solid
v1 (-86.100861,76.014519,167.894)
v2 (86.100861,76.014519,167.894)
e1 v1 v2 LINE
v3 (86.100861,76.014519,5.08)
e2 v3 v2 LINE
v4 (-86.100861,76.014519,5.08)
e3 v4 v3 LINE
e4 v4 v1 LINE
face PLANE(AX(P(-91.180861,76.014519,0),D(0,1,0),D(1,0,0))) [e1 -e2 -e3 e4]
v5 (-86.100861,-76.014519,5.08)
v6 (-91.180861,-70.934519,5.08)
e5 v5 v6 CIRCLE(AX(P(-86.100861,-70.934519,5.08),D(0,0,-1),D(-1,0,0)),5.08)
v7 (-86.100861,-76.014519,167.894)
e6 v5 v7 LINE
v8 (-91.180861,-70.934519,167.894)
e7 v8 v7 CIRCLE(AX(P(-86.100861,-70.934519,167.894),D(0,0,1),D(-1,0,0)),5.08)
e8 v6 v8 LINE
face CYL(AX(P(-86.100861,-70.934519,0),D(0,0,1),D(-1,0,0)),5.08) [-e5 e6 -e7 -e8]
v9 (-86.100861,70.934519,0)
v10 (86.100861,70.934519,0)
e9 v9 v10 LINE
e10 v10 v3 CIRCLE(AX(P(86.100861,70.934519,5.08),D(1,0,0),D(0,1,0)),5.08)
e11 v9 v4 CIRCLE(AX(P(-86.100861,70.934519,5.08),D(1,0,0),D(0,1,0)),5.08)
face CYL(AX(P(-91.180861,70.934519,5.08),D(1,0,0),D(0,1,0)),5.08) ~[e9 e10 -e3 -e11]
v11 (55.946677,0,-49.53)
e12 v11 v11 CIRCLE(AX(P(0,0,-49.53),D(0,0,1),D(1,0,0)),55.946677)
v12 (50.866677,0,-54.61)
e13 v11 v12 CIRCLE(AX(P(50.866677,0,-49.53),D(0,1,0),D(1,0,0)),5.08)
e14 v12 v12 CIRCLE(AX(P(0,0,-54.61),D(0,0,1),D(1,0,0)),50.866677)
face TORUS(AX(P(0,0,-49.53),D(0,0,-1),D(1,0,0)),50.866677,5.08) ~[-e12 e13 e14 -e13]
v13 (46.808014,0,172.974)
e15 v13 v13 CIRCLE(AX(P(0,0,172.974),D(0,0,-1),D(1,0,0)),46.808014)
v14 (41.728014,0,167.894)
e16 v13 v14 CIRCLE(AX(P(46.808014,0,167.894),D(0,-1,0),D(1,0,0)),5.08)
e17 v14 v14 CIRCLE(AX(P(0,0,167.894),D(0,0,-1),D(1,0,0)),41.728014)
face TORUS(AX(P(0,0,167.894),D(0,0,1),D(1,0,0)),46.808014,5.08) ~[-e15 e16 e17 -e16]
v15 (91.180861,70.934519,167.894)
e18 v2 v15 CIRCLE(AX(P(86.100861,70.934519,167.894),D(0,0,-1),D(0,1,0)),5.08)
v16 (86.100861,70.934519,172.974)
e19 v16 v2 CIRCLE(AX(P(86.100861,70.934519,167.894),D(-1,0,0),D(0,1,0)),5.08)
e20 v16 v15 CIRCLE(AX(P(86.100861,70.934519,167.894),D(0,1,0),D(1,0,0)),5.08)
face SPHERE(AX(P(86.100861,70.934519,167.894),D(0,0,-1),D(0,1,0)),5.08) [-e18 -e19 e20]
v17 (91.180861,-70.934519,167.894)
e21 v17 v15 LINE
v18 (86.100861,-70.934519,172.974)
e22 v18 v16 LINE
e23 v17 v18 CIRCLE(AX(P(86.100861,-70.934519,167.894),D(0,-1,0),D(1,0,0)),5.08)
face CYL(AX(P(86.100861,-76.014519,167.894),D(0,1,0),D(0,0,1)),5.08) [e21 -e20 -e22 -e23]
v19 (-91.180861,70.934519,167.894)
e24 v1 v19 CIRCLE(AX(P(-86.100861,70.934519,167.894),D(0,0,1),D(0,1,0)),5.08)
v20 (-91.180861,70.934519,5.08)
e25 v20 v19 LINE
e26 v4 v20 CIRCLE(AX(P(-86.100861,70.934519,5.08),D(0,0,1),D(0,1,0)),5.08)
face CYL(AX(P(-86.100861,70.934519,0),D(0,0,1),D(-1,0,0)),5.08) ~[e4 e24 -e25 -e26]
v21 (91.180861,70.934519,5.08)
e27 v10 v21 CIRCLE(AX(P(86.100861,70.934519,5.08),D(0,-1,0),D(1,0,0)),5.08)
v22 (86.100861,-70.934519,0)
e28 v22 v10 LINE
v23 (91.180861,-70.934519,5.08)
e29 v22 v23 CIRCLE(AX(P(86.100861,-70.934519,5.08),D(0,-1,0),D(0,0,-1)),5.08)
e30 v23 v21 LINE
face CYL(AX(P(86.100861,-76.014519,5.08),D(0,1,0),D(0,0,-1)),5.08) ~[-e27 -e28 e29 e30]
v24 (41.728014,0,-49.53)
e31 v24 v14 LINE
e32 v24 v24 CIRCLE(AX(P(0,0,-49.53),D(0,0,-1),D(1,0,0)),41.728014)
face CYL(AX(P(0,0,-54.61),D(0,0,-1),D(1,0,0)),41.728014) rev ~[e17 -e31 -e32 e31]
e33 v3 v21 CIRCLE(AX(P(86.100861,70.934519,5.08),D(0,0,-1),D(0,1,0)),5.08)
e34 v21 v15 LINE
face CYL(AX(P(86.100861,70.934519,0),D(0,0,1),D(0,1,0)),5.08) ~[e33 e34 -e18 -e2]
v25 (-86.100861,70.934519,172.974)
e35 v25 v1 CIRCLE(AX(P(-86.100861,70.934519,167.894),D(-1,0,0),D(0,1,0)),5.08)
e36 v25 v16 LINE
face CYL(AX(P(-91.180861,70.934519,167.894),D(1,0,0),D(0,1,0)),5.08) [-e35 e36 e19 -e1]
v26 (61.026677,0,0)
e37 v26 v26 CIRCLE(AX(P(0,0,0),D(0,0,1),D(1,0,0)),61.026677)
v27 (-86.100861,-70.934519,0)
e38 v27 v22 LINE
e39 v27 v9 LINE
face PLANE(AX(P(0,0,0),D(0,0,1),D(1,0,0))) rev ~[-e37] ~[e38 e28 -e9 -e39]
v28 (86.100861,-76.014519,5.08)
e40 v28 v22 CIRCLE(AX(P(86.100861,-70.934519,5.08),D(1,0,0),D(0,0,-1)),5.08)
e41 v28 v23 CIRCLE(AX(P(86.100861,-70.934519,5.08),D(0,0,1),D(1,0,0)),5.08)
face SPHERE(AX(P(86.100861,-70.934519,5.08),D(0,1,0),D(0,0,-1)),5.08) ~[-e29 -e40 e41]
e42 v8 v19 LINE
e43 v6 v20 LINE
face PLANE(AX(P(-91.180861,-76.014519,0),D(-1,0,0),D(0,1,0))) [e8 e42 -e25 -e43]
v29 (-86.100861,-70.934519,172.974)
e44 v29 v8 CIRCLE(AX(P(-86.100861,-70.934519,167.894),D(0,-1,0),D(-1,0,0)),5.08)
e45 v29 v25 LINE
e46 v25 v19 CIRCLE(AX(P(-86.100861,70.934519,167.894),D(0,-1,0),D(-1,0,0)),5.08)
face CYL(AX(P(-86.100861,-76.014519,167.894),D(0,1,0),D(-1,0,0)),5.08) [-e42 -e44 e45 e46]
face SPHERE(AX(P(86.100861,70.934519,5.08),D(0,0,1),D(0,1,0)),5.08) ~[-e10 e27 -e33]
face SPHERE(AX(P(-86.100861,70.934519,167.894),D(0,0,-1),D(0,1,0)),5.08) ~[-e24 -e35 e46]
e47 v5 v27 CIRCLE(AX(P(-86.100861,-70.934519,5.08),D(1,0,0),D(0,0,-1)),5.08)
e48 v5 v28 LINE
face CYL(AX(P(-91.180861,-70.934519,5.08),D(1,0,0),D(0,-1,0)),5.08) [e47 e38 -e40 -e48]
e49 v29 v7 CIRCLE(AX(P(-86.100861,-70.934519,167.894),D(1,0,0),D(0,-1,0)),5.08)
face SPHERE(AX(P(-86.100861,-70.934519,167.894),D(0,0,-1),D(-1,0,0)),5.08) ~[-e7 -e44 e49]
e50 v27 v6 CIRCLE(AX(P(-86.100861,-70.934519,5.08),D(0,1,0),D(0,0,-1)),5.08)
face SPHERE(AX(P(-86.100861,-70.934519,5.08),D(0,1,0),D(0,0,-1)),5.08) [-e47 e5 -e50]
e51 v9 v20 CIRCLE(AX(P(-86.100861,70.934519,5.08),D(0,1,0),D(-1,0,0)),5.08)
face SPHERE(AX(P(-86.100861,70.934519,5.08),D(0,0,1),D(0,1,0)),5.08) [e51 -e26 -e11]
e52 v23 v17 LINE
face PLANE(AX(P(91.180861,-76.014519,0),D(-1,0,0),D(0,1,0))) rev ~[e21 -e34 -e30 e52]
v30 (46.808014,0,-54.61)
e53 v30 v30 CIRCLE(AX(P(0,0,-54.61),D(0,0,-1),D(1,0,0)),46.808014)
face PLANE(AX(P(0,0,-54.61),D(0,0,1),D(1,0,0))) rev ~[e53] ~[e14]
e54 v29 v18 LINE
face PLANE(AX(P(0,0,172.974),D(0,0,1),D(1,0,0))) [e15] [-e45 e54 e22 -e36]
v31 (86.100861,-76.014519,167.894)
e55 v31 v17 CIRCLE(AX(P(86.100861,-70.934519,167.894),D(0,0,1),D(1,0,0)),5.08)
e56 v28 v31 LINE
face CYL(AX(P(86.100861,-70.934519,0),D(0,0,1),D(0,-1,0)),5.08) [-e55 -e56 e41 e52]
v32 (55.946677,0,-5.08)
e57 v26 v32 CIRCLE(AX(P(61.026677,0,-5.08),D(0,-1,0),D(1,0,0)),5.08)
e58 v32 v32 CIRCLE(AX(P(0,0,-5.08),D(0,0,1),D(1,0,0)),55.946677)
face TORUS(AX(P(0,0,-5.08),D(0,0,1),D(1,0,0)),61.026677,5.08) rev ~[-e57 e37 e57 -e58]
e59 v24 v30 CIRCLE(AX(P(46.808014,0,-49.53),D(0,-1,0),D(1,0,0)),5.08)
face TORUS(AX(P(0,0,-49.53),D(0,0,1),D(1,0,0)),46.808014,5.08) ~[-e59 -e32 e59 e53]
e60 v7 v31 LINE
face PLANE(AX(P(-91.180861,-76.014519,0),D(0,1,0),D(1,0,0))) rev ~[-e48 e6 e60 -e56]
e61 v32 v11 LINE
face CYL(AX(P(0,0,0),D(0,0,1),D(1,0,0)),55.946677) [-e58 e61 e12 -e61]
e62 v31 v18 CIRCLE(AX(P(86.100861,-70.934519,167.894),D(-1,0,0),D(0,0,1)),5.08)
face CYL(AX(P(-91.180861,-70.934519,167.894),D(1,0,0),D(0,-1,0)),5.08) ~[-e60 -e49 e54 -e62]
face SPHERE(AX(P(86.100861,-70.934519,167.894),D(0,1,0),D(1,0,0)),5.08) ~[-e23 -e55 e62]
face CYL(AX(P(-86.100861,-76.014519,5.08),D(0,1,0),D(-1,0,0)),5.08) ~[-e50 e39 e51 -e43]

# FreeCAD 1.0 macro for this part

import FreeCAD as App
import Part
import Sketcher
from FreeCAD import Vector
Q = App.Units.Quantity

doc = App.newDocument("Part")
params = doc.addObject("Spreadsheet::Sheet", "Params")
for row, (alias, value) in enumerate([
    ("pad1_length", "6.81 in"),
    ("pad2_length", "2.15 in"),
    ("pocket1_length", "10.68 in"),
    ("fillet_radius", "0.2 in"),
], start=1):
    params.set(f"A{row}", alias)
    params.set(f"B{row}", "=" + value)
    params.setAlias(f"B{row}", alias)

body = doc.addObject("PartDesign::Body", "Body")

sketch1 = body.newObject("Sketcher::SketchObject", "Sketch")
sketch1.AttachmentSupport = (doc.getObject("XY_Plane"), [""])
sketch1.MapMode = "FlatFace"
sketch1.addGeometry([
    Part.LineSegment(Vector(-91, 76, 0), Vector(-91, -76, 0)),
    Part.LineSegment(Vector(-91, -76, 0), Vector(91, -76, 0)),
    Part.LineSegment(Vector(91, -76, 0), Vector(91, 76, 0)),
    Part.LineSegment(Vector(91, 76, 0), Vector(-91, 76, 0)),
], False)
sketch1.addConstraint([
    Sketcher.Constraint("Coincident", 0, 2, 1, 1),
    Sketcher.Constraint("Coincident", 1, 2, 2, 1),
    Sketcher.Constraint("Coincident", 2, 2, 3, 1),
    Sketcher.Constraint("Coincident", 3, 2, 0, 1),
    Sketcher.Constraint("Vertical", 0),
    Sketcher.Constraint("Horizontal", 1),
    Sketcher.Constraint("Vertical", 2),
    Sketcher.Constraint("Horizontal", 3),
    Sketcher.Constraint("Symmetric", 0, 2, 2, 2, -1, 1),
    Sketcher.Constraint("DistanceX", 1, 1, 1, 2, Q("182.361722 mm")),
    Sketcher.Constraint("DistanceY", 0, 2, 0, 1, Q("152.029037 mm")),
])
pad1 = body.newObject("PartDesign::Pad", "Pad")
pad1.Profile = sketch1
pad1.setExpression("Length", "Params.pad1_length")

sketch2 = body.newObject("Sketcher::SketchObject", "Sketch001")
sketch2.AttachmentSupport = (doc.getObject("XY_Plane"), [""])
sketch2.MapMode = "FlatFace"
sketch2.addGeometry(Part.Circle(Vector(0, 0, 0), Vector(0, 0, 1), 56), False)
sketch2.addConstraint([
    Sketcher.Constraint("Coincident", 0, 3, -1, 1),
    Sketcher.Constraint("Diameter", 0, Q("111.893354 mm")),
])
pad2 = body.newObject("PartDesign::Pad", "Pad001")
pad2.Profile = sketch2
pad2.setExpression("Length", "Params.pad2_length")
pad2.Reversed = True

sketch3 = body.newObject("Sketcher::SketchObject", "Sketch002")
sketch3.AttachmentSupport = (doc.getObject("XY_Plane"), [""])
sketch3.MapMode = "FlatFace"
sketch3.AttachmentOffset = App.Placement(Vector(0, 0, -2.15 * 25.4), App.Rotation())
sketch3.addGeometry(Part.Circle(Vector(0, 0, 0), Vector(0, 0, 1), 42), False)
sketch3.addConstraint([
    Sketcher.Constraint("Coincident", 0, 3, -1, 1),
    Sketcher.Constraint("Diameter", 0, Q("83.456028 mm")),
])
pocket1 = body.newObject("PartDesign::Pocket", "Pocket")
pocket1.Profile = sketch3
pocket1.setExpression("Length", "Params.pocket1_length")
pocket1.Reversed = True
doc.recompute()

fillet = body.newObject("PartDesign::Fillet", "Fillet")
fillet.Base = (pocket1, ["Edge1"])
fillet.UseAllEdges = True
fillet.setExpression("Radius", "Params.fillet_radius")

doc.recompute()
